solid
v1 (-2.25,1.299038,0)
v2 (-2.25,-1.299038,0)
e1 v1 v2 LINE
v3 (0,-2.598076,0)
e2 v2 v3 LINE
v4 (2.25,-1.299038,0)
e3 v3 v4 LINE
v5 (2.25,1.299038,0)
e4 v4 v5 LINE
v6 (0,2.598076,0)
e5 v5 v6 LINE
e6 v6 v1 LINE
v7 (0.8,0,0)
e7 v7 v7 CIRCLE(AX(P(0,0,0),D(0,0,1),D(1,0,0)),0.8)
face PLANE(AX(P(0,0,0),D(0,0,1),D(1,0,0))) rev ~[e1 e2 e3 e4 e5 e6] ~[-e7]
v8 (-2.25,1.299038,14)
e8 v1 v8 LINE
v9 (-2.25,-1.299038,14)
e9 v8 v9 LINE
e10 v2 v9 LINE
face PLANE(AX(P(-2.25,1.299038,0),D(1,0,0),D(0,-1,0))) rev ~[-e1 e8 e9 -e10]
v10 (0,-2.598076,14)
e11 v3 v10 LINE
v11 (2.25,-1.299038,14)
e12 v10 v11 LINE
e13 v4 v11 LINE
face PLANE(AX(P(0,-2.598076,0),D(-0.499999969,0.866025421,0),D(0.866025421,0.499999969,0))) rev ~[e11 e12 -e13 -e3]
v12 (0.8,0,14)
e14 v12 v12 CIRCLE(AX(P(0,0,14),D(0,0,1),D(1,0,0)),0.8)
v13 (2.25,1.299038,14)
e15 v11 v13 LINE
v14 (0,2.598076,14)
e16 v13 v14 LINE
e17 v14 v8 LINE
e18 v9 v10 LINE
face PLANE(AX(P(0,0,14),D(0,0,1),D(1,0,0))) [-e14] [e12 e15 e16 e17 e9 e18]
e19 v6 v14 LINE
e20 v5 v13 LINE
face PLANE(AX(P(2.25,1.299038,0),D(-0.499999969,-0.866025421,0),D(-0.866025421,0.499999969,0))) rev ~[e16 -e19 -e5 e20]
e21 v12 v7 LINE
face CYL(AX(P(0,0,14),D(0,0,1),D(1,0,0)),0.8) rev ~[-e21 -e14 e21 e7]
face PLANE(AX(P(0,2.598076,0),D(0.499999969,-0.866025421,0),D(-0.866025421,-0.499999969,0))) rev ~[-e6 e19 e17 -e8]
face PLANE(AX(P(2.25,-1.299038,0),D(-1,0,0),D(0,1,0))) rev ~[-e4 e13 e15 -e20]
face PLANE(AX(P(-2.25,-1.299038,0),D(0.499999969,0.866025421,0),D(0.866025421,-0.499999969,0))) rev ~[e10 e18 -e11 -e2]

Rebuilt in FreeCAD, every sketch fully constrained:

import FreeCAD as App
import Part
import Sketcher

V = App.Vector
Q = App.Units.Quantity

doc = App.newDocument("Part")
params = doc.addObject("Spreadsheet::Sheet", "Params")
for row, (alias, value) in enumerate([
    ("pad1_length", "14 mm"),
    ("sketch2_diameter", "1.6 mm"),
], start=1):
    params.set(f"A{row}", alias)
    params.set(f"B{row}", "=" + value)
    params.setAlias(f"B{row}", alias)

body = doc.addObject("PartDesign::Body", "Body")

sketch1 = body.newObject("Sketcher::SketchObject", "Sketch")
sketch1.AttachmentSupport = (doc.getObject("XY_Plane"), [""])
sketch1.MapMode = "FlatFace"
sketch1.addGeometry([
    Part.LineSegment(V(-2.2, -1.3, 0), V(0, -2.6, 0)),
    Part.LineSegment(V(0, -2.6, 0), V(2.2, -1.3, 0)),
    Part.LineSegment(V(2.2, -1.3, 0), V(2.2, 1.3, 0)),
    Part.LineSegment(V(2.2, 1.3, 0), V(0, 2.6, 0)),
    Part.LineSegment(V(0, 2.6, 0), V(-2.2, 1.3, 0)),
    Part.LineSegment(V(-2.2, 1.3, 0), V(-2.2, -1.3, 0)),
], False)
sketch1.addConstraint([
    Sketcher.Constraint("Coincident", 0, 2, 1, 1),
    Sketcher.Constraint("Coincident", 1, 2, 2, 1),
    Sketcher.Constraint("Coincident", 2, 2, 3, 1),
    Sketcher.Constraint("Coincident", 3, 2, 4, 1),
    Sketcher.Constraint("Coincident", 4, 2, 5, 1),
    Sketcher.Constraint("Coincident", 5, 2, 0, 1),
    Sketcher.Constraint("Vertical", 2),
    Sketcher.Constraint("Vertical", 5),
    Sketcher.Constraint("Symmetric", 0, 2, 3, 2, -1, 1),
    Sketcher.Constraint("Symmetric", 1, 2, 4, 2, -1, 1),
    Sketcher.Constraint("PointOnObject", 0, 2, -2),
    Sketcher.Constraint("Parallel", 0, 3),
    Sketcher.Constraint("Horizontal", 2, 2, 4, 2),
    Sketcher.Constraint("Angle", 0, Q("-29.999998 deg")),
    Sketcher.Constraint("DistanceX", 4, 2, 2, 2, 4.5),
    Sketcher.Constraint("DistanceY", 2, 1, 2, 2, 2.598076),
])
pad1 = body.newObject("PartDesign::Pad", "Pad")
pad1.Profile = sketch1
pad1.setExpression("Length", "Params.pad1_length")

sketch2 = body.newObject("Sketcher::SketchObject", "Sketch001")
sketch2.AttachmentSupport = (doc.getObject("XY_Plane"), [""])
sketch2.MapMode = "FlatFace"
sketch2.AttachmentOffset = App.Placement(V(0, 0, 14), App.Rotation())
sketch2.addGeometry(Part.Circle(V(0, 0, 0), V(0, 0, 1), 0.8), False)
sketch2.addConstraint([
    Sketcher.Constraint("Coincident", 0, 3, -1, 1),
    Sketcher.Constraint("Diameter", 0, 1.6),
])
sketch2.setExpression("Constraints[1]", "Params.sketch2_diameter")
pocket1 = body.newObject("PartDesign::Pocket", "Pocket")
pocket1.Profile = sketch2
pocket1.Type = "ThroughAll"

doc.recompute()
